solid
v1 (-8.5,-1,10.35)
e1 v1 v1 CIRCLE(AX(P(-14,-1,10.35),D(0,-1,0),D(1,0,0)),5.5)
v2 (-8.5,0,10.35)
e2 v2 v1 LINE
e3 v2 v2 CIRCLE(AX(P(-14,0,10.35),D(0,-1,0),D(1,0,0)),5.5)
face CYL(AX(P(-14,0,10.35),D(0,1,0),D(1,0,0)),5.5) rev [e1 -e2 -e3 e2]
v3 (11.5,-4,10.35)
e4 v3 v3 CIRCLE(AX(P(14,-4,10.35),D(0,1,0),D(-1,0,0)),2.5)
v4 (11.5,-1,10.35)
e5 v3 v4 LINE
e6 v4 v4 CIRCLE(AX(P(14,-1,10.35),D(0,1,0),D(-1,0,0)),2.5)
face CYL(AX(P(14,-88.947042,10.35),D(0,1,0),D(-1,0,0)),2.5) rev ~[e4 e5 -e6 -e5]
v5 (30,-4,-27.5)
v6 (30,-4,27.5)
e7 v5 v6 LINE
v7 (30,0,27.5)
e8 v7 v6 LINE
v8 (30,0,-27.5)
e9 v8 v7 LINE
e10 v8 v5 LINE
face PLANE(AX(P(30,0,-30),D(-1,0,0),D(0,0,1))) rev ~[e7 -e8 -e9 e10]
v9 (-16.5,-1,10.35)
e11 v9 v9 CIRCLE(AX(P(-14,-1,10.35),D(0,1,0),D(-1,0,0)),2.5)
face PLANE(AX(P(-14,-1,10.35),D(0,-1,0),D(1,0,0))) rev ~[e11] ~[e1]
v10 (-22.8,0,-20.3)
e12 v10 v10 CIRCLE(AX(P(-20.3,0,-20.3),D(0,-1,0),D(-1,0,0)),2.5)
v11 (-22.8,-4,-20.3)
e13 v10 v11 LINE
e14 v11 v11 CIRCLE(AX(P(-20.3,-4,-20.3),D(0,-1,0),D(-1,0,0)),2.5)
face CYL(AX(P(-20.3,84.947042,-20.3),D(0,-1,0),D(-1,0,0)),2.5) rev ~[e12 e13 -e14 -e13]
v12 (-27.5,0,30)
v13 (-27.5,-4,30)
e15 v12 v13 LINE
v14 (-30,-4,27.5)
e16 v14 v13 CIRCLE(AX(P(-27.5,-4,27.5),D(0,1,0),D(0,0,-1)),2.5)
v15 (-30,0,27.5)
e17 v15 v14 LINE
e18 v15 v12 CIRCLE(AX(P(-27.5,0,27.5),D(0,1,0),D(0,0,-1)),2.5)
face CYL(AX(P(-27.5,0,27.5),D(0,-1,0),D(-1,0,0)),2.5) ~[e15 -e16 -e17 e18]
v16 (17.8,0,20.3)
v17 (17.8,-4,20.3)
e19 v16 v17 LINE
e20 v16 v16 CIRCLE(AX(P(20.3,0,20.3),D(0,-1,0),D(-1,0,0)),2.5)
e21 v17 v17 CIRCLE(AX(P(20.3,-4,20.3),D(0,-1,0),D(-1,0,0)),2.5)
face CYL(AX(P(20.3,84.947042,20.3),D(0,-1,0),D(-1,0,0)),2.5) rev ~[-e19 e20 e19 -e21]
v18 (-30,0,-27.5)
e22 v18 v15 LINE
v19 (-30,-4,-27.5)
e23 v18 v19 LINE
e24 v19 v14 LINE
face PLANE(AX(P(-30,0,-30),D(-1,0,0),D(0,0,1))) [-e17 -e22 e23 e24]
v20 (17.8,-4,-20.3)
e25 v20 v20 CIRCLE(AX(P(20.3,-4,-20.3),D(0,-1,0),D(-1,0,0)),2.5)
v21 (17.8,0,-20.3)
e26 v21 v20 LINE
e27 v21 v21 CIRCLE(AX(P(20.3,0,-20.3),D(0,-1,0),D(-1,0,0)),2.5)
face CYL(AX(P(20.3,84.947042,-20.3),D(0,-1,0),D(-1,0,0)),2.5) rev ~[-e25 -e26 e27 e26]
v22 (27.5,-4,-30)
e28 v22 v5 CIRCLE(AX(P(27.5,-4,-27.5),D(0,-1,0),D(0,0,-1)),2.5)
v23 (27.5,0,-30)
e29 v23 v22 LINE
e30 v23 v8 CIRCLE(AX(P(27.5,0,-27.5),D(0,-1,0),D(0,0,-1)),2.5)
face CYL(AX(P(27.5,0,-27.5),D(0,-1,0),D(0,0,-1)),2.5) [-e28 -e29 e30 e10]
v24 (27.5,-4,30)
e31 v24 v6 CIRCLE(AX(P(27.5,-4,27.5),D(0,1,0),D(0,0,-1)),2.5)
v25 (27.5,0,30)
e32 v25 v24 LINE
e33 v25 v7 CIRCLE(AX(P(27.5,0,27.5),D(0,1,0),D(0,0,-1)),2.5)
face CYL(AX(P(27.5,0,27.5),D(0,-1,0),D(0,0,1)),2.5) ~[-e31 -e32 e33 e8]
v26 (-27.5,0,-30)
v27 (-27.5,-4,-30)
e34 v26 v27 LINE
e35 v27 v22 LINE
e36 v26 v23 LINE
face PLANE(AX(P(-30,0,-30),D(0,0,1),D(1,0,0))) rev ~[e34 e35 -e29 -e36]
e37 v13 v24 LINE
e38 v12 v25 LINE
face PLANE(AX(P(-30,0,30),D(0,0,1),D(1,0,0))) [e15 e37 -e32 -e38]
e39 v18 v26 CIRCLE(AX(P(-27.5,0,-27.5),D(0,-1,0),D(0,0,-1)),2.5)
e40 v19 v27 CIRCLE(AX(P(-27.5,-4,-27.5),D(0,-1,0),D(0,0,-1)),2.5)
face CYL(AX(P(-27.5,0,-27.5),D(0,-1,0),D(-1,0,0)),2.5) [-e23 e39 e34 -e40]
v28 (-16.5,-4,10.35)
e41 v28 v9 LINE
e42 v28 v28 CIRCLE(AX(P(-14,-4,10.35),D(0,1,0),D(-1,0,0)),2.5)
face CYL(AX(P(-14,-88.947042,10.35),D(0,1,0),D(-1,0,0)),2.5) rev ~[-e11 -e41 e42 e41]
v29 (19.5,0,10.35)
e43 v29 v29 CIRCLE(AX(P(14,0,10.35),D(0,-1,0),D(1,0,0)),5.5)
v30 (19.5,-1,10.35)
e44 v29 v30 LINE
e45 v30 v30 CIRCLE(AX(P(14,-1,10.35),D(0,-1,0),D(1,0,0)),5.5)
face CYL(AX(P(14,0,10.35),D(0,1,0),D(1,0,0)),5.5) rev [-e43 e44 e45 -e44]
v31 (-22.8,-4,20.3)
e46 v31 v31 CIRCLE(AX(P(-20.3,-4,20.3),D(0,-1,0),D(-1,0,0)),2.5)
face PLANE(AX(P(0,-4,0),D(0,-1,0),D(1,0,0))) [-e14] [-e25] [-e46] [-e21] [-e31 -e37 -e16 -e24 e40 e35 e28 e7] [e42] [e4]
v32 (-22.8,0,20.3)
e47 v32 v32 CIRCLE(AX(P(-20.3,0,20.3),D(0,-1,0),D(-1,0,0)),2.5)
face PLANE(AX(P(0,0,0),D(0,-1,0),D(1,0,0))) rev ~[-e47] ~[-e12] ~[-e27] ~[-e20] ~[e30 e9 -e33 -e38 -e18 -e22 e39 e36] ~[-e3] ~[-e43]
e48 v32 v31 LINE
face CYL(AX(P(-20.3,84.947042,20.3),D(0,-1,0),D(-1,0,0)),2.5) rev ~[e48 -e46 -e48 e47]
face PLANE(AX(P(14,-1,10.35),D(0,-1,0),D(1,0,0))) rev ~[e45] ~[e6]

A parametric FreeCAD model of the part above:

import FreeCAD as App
import Part
import Sketcher

V = App.Vector
Q = App.Units.Quantity


def edges_at(feature, points):
    """Names of the edges that pass closest to the given points."""
    edges = feature.Shape.Edges
    near = lambda p: min(range(len(edges)), key=lambda i: edges[i].distToShape(Part.Vertex(*p))[0])
    return sorted({f"Edge{near(p) + 1}" for p in points})


def add_polygon(sketch, points):
    """Adds a closed chain of lines whose ends are joined by coincident constraints."""
    first, n = sketch.GeometryCount, len(points)
    for a, b in zip(points, points[1:] + points[:1]):
        sketch.addGeometry(Part.LineSegment(App.Vector(*a, 0), App.Vector(*b, 0)), False)
    for i in range(n):
        sketch.addConstraint(Sketcher.Constraint("Coincident", first + i, 2, first + (i + 1) % n, 1))

doc = App.newDocument("Part")
body = doc.addObject("PartDesign::Body", "Body")

# Sketch on XZ plane
sketch1 = doc.addObject("Sketcher::SketchObject", "Sketch")
body.addObject(sketch1)
sketch1.AttachmentSupport = (doc.XZ_Plane, [""])
sketch1.MapMode = "FlatFace"
add_polygon(sketch1, [(-30, 30), (-30, -30), (30, -30), (30, 30)])  # lines 0-3
sketch1.addConstraint(Sketcher.Constraint("Vertical", 0))
sketch1.addConstraint(Sketcher.Constraint("Horizontal", 1))
sketch1.addConstraint(Sketcher.Constraint("Vertical", 2))
sketch1.addConstraint(Sketcher.Constraint("Horizontal", 3))
sketch1.addConstraint(Sketcher.Constraint("Symmetric", 0, 2, 2, 2, -1, 1))
sketch1.addConstraint(Sketcher.Constraint("Equal", 3, 0))
sketch1.addConstraint(Sketcher.Constraint("DistanceX", 1, 1, 1, 2, Q("60 mm")))
pad1 = doc.addObject("PartDesign::Pad", "Pad")
body.addObject(pad1)
pad1.Profile = sketch1
pad1.Length = 4

# Sketch on XZ plane
sketch2 = doc.addObject("Sketcher::SketchObject", "Sketch001")
body.addObject(sketch2)
sketch2.AttachmentSupport = (doc.XZ_Plane, [""])
sketch2.MapMode = "FlatFace"
sketch2.addGeometry(Part.Circle(V(-20.3, 20.3, 0), V(0, 0, 1), 2.5), False)
sketch2.addGeometry(Part.Circle(V(20.3, 20.3, 0), V(0, 0, 1), 2.5), False)
sketch2.addGeometry(Part.Circle(V(20.3, -20.3, 0), V(0, 0, 1), 2.5), False)
sketch2.addGeometry(Part.Circle(V(-20.3, -20.3, 0), V(0, 0, 1), 2.5), False)
sketch2.addConstraint(Sketcher.Constraint("Equal", 0, 1))
sketch2.addConstraint(Sketcher.Constraint("Equal", 1, 2))
sketch2.addConstraint(Sketcher.Constraint("Equal", 2, 3))
sketch2.addConstraint(Sketcher.Constraint("Symmetric", 0, 3, 2, 3, -1, 1))
sketch2.addConstraint(Sketcher.Constraint("Symmetric", 1, 3, 3, 3, -1, 1))
sketch2.addConstraint(Sketcher.Constraint("Symmetric", 0, 3, 1, 3, -2))
sketch2.addConstraint(Sketcher.Constraint("Diameter", 0, Q("5 mm")))
sketch2.addConstraint(Sketcher.Constraint("DistanceX", 0, 3, -1, 1, Q("20.3 mm")))
sketch2.addConstraint(Sketcher.Constraint("DistanceY", -1, 1, 0, 3, Q("20.3 mm")))
doc.recompute()
hole = doc.addObject("PartDesign::Hole", "Hole")
body.addObject(hole)
hole.Profile = sketch2
hole.ThreadType = "None"
hole.Diameter = 5
hole.DepthType = "ThroughAll"
hole.Reversed = True

# Sketch on XZ plane
sketch3 = doc.addObject("Sketcher::SketchObject", "Sketch002")
body.addObject(sketch3)
sketch3.AttachmentSupport = (doc.XZ_Plane, [""])
sketch3.MapMode = "FlatFace"
sketch3.AttachmentOffset = App.Placement(V(0, 0, 4), App.Rotation())
sketch3.addGeometry(Part.Circle(V(-14, 10.3, 0), V(0, 0, 1), 2.5), False)
sketch3.addGeometry(Part.Circle(V(14, 10.3, 0), V(0, 0, 1), 2.5), False)
sketch3.addConstraint(Sketcher.Constraint("Equal", 0, 1))
sketch3.addConstraint(Sketcher.Constraint("Symmetric", 0, 3, 1, 3, -2))
sketch3.addConstraint(Sketcher.Constraint("Diameter", 0, Q("5 mm")))
sketch3.addConstraint(Sketcher.Constraint("DistanceX", 0, 3, -1, 1, Q("14 mm")))
sketch3.addConstraint(Sketcher.Constraint("DistanceY", -1, 1, 0, 3, Q("10.35 mm")))
doc.recompute()
hole2 = doc.addObject("PartDesign::Hole", "Hole001")
body.addObject(hole2)
hole2.Profile = sketch3
hole2.ThreadType = "None"
hole2.Diameter = 5
hole2.DepthType = "ThroughAll"

# Sketch on XZ plane
sketch4 = doc.addObject("Sketcher::SketchObject", "Sketch003")
body.addObject(sketch4)
sketch4.AttachmentSupport = (doc.XZ_Plane, [""])
sketch4.MapMode = "FlatFace"
sketch4.addGeometry(Part.Circle(V(14, 10, 0), V(0, 0, 1), 6), False)
sketch4.addGeometry(Part.Circle(V(-14, 10, 0), V(0, 0, 1), 6), False)
sketch4.addConstraint(Sketcher.Constraint("Equal", 0, 1))
sketch4.addConstraint(Sketcher.Constraint("Symmetric", 0, 3, 1, 3, -2))
sketch4.addConstraint(Sketcher.Constraint("Diameter", 0, Q("11 mm")))
sketch4.addConstraint(Sketcher.Constraint("DistanceX", -1, 1, 0, 3, Q("14 mm")))
sketch4.addConstraint(Sketcher.Constraint("DistanceY", -1, 1, 0, 3, Q("10.35 mm")))
pocket1 = doc.addObject("PartDesign::Pocket", "Pocket")
body.addObject(pocket1)
pocket1.Profile = sketch4
pocket1.Length = 1
pocket1.Reversed = True
doc.recompute()

fillet = doc.addObject("PartDesign::Fillet", "Fillet")
body.addObject(fillet)
fillet.Base = (pocket1, edges_at(pocket1, [
    (30, -2, 30),
    (30, -2, -30),
    (-30, -2, -30),
    (-30, -2, 30),
]))
fillet.Radius = 2.5

doc.recompute()
